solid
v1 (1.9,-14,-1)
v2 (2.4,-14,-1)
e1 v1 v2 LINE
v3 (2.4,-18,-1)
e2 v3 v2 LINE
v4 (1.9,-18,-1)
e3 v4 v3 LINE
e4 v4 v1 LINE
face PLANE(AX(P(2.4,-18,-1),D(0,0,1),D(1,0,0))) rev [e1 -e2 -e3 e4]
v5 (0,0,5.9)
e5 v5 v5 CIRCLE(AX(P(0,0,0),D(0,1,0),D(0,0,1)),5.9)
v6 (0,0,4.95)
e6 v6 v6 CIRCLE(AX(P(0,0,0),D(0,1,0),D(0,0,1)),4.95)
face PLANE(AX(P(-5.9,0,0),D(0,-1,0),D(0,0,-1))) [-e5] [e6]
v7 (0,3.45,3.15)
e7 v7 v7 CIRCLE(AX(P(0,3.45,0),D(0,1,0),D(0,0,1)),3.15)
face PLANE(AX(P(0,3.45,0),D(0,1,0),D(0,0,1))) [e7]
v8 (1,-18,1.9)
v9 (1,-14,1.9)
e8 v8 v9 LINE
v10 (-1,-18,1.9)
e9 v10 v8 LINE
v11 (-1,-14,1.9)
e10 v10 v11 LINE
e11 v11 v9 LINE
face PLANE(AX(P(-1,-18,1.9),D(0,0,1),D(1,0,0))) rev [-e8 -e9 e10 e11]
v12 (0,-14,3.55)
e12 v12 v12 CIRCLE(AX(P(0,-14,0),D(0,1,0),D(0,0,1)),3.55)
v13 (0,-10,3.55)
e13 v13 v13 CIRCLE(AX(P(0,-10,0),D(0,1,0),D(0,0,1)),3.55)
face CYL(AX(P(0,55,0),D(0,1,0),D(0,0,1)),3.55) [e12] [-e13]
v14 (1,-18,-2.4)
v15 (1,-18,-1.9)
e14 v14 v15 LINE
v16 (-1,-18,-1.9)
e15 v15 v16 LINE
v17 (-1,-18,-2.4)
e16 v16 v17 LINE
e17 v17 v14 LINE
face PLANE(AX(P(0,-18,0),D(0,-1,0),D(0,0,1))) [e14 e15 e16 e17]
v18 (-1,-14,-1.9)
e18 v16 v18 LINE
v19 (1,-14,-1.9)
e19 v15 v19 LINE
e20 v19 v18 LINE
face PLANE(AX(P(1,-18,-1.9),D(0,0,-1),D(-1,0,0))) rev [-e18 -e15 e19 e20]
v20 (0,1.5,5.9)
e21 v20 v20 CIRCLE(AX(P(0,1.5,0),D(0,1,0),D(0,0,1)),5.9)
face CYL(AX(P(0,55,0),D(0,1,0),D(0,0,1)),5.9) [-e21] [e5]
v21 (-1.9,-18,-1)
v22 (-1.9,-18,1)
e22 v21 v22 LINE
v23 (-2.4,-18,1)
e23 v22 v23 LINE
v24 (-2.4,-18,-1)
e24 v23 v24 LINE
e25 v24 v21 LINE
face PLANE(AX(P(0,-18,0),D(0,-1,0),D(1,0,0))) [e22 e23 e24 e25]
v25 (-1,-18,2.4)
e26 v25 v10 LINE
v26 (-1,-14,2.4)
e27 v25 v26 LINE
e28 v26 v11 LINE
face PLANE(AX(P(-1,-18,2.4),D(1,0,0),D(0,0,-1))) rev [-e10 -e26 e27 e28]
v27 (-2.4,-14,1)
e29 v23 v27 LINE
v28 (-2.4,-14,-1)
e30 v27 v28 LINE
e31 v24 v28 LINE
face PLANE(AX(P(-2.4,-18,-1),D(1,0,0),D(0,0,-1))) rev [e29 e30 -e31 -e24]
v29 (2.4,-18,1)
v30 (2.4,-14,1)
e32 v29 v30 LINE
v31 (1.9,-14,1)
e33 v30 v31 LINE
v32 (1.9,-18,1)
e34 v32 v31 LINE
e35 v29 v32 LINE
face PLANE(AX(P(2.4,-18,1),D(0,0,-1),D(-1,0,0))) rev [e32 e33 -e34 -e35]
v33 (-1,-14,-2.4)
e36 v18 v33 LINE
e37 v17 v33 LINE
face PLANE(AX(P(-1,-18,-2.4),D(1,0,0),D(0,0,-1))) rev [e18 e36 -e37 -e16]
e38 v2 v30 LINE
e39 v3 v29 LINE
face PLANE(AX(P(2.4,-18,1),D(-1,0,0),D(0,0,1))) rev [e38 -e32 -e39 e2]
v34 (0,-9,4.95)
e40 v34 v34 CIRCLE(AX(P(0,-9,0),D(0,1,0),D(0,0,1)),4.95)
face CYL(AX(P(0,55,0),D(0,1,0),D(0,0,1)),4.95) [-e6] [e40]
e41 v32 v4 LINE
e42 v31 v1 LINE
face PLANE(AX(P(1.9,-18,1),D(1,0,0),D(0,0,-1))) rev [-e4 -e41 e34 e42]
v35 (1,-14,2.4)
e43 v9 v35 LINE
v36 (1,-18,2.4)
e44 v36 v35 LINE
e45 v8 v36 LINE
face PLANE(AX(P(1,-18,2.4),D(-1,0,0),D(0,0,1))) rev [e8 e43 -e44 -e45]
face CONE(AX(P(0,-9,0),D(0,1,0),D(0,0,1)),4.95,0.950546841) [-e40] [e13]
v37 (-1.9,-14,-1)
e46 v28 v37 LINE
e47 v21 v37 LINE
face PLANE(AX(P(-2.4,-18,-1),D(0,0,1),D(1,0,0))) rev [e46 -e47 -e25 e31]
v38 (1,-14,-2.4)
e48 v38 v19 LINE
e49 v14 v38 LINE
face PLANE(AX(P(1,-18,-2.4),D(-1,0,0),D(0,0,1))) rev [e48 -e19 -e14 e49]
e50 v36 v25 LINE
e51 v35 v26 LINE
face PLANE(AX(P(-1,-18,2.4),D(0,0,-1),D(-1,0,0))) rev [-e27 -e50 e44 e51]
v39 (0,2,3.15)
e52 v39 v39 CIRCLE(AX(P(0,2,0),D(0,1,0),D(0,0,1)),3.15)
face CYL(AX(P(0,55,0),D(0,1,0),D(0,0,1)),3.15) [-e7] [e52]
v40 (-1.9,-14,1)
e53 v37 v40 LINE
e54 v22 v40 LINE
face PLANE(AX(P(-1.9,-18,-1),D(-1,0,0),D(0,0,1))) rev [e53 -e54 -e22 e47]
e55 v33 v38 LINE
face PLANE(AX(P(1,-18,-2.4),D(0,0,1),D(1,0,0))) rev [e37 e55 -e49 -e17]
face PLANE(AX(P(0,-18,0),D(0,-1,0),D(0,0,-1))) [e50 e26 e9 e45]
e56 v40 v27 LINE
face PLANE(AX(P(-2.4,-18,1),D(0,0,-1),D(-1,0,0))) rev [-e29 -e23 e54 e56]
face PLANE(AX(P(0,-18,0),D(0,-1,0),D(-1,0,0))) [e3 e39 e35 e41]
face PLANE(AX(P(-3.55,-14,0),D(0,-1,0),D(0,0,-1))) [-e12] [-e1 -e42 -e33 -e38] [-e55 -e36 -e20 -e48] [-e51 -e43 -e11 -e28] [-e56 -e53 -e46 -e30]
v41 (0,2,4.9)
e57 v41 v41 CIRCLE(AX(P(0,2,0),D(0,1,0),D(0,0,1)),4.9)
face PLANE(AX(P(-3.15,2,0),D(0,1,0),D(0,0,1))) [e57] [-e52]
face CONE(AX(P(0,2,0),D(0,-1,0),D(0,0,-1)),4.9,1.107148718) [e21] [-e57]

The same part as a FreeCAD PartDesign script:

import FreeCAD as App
import Part
import Sketcher


def add_polygon(sketch, points):
    """Adds a closed chain of lines whose ends are joined by coincident constraints."""
    first, n = sketch.GeometryCount, len(points)
    for a, b in zip(points, points[1:] + points[:1]):
        sketch.addGeometry(Part.LineSegment(App.Vector(*a, 0), App.Vector(*b, 0)), False)
    for i in range(n):
        sketch.addConstraint(Sketcher.Constraint("Coincident", first + i, 2, first + (i + 1) % n, 1))

doc = App.newDocument("Part")
body = doc.addObject("PartDesign::Body", "Body")

sketch1 = doc.addObject("Sketcher::SketchObject", "Sketch")
body.addObject(sketch1)
sketch1.AttachmentSupport = (doc.XY_Plane, [""])
sketch1.MapMode = "FlatFace"
add_polygon(sketch1, [(0, 3.45), (-3.15, 3.45), (-3.15, 2), (-4.9, 2), (-5.9, 1.5), (-5.9, 0), (-4.95, 0), (-4.95, -9), (-3.55, -10), (-3.55, -14), (0, -14)])
sketch1.addConstraint(Sketcher.Constraint("Horizontal", 0))
sketch1.addConstraint(Sketcher.Constraint("Vertical", 1))
sketch1.addConstraint(Sketcher.Constraint("Horizontal", 2))
sketch1.addConstraint(Sketcher.Constraint("Vertical", 4))
sketch1.addConstraint(Sketcher.Constraint("Horizontal", 5))
sketch1.addConstraint(Sketcher.Constraint("Vertical", 6))
sketch1.addConstraint(Sketcher.Constraint("Vertical", 8))
sketch1.addConstraint(Sketcher.Constraint("Horizontal", 9))
sketch1.addConstraint(Sketcher.Constraint("Vertical", 10))
sketch1.addConstraint(Sketcher.Constraint("PointOnObject", 4, 2, -1))
sketch1.addConstraint(Sketcher.Constraint("PointOnObject", 9, 2, -2))
sketch1.addConstraint(Sketcher.Constraint("DistanceY", 6, 2, 6, 1, 9.0))
sketch1.addConstraint(Sketcher.Constraint("DistanceY", 8, 2, 8, 1, 4.0))
sketch1.addConstraint(Sketcher.Constraint("DistanceY", 4, 2, 4, 1, 1.5))
sketch1.addConstraint(Sketcher.Constraint("DistanceY", -1, 1, 1, 2, 2.0))
sketch1.addConstraint(Sketcher.Constraint("DistanceY", 7, 2, -1, 1, 10.0))
sketch1.addConstraint(Sketcher.Constraint("DistanceX", 3, 2, 2, 2, 1.0))
sketch1.addConstraint(Sketcher.Constraint("DistanceX", 0, 2, 0, 1, 3.15))
sketch1.addConstraint(Sketcher.Constraint("DistanceX", 2, 2, 2, 1, 1.75))
sketch1.addConstraint(Sketcher.Constraint("DistanceX", 5, 1, 5, 2, 0.95))
sketch1.addConstraint(Sketcher.Constraint("DistanceX", 9, 1, 9, 2, 3.55))
sketch1.addConstraint(Sketcher.Constraint("DistanceY", 1, 2, 1, 1, 1.45))
revolution = doc.addObject("PartDesign::Revolution", "Revolution")
body.addObject(revolution)
revolution.Profile = sketch1
revolution.ReferenceAxis = (sketch1, ["V_Axis"])
revolution.Angle = 360

sketch2 = doc.addObject("Sketcher::SketchObject", "Sketch001")
body.addObject(sketch2)
sketch2.AttachmentSupport = (doc.XZ_Plane, [""])
sketch2.MapMode = "FlatFace"
sketch2.AttachmentOffset = App.Placement(App.Vector(0, 0, 14), App.Rotation())
add_polygon(sketch2, [(-1, 2.4), (-1, 1.9), (1, 1.9), (1, 2.4)])
sketch2.addConstraint(Sketcher.Constraint("Vertical", 0))
sketch2.addConstraint(Sketcher.Constraint("Horizontal", 1))
sketch2.addConstraint(Sketcher.Constraint("Vertical", 2))
sketch2.addConstraint(Sketcher.Constraint("Horizontal", 3))
sketch2.addConstraint(Sketcher.Constraint("DistanceX", 1, 1, 1, 2, 2.0))
sketch2.addConstraint(Sketcher.Constraint("DistanceY", 0, 2, 0, 1, 0.5))
sketch2.addConstraint(Sketcher.Constraint("DistanceX", 0, 2, -1, 1, 1.0))
sketch2.addConstraint(Sketcher.Constraint("DistanceY", -1, 1, 0, 2, 1.9))
pad1 = doc.addObject("PartDesign::Pad", "Pad")
body.addObject(pad1)
pad1.Profile = sketch2
pad1.Length = 4
doc.recompute()

polarpattern = doc.addObject("PartDesign::PolarPattern", "PolarPattern")
body.addObject(polarpattern)
polarpattern.Originals = [pad1]
polarpattern.Axis = (doc.Y_Axis, [""])
polarpattern.Angle = 360
polarpattern.Occurrences = 4
body.Tip = polarpattern

doc.recompute()
